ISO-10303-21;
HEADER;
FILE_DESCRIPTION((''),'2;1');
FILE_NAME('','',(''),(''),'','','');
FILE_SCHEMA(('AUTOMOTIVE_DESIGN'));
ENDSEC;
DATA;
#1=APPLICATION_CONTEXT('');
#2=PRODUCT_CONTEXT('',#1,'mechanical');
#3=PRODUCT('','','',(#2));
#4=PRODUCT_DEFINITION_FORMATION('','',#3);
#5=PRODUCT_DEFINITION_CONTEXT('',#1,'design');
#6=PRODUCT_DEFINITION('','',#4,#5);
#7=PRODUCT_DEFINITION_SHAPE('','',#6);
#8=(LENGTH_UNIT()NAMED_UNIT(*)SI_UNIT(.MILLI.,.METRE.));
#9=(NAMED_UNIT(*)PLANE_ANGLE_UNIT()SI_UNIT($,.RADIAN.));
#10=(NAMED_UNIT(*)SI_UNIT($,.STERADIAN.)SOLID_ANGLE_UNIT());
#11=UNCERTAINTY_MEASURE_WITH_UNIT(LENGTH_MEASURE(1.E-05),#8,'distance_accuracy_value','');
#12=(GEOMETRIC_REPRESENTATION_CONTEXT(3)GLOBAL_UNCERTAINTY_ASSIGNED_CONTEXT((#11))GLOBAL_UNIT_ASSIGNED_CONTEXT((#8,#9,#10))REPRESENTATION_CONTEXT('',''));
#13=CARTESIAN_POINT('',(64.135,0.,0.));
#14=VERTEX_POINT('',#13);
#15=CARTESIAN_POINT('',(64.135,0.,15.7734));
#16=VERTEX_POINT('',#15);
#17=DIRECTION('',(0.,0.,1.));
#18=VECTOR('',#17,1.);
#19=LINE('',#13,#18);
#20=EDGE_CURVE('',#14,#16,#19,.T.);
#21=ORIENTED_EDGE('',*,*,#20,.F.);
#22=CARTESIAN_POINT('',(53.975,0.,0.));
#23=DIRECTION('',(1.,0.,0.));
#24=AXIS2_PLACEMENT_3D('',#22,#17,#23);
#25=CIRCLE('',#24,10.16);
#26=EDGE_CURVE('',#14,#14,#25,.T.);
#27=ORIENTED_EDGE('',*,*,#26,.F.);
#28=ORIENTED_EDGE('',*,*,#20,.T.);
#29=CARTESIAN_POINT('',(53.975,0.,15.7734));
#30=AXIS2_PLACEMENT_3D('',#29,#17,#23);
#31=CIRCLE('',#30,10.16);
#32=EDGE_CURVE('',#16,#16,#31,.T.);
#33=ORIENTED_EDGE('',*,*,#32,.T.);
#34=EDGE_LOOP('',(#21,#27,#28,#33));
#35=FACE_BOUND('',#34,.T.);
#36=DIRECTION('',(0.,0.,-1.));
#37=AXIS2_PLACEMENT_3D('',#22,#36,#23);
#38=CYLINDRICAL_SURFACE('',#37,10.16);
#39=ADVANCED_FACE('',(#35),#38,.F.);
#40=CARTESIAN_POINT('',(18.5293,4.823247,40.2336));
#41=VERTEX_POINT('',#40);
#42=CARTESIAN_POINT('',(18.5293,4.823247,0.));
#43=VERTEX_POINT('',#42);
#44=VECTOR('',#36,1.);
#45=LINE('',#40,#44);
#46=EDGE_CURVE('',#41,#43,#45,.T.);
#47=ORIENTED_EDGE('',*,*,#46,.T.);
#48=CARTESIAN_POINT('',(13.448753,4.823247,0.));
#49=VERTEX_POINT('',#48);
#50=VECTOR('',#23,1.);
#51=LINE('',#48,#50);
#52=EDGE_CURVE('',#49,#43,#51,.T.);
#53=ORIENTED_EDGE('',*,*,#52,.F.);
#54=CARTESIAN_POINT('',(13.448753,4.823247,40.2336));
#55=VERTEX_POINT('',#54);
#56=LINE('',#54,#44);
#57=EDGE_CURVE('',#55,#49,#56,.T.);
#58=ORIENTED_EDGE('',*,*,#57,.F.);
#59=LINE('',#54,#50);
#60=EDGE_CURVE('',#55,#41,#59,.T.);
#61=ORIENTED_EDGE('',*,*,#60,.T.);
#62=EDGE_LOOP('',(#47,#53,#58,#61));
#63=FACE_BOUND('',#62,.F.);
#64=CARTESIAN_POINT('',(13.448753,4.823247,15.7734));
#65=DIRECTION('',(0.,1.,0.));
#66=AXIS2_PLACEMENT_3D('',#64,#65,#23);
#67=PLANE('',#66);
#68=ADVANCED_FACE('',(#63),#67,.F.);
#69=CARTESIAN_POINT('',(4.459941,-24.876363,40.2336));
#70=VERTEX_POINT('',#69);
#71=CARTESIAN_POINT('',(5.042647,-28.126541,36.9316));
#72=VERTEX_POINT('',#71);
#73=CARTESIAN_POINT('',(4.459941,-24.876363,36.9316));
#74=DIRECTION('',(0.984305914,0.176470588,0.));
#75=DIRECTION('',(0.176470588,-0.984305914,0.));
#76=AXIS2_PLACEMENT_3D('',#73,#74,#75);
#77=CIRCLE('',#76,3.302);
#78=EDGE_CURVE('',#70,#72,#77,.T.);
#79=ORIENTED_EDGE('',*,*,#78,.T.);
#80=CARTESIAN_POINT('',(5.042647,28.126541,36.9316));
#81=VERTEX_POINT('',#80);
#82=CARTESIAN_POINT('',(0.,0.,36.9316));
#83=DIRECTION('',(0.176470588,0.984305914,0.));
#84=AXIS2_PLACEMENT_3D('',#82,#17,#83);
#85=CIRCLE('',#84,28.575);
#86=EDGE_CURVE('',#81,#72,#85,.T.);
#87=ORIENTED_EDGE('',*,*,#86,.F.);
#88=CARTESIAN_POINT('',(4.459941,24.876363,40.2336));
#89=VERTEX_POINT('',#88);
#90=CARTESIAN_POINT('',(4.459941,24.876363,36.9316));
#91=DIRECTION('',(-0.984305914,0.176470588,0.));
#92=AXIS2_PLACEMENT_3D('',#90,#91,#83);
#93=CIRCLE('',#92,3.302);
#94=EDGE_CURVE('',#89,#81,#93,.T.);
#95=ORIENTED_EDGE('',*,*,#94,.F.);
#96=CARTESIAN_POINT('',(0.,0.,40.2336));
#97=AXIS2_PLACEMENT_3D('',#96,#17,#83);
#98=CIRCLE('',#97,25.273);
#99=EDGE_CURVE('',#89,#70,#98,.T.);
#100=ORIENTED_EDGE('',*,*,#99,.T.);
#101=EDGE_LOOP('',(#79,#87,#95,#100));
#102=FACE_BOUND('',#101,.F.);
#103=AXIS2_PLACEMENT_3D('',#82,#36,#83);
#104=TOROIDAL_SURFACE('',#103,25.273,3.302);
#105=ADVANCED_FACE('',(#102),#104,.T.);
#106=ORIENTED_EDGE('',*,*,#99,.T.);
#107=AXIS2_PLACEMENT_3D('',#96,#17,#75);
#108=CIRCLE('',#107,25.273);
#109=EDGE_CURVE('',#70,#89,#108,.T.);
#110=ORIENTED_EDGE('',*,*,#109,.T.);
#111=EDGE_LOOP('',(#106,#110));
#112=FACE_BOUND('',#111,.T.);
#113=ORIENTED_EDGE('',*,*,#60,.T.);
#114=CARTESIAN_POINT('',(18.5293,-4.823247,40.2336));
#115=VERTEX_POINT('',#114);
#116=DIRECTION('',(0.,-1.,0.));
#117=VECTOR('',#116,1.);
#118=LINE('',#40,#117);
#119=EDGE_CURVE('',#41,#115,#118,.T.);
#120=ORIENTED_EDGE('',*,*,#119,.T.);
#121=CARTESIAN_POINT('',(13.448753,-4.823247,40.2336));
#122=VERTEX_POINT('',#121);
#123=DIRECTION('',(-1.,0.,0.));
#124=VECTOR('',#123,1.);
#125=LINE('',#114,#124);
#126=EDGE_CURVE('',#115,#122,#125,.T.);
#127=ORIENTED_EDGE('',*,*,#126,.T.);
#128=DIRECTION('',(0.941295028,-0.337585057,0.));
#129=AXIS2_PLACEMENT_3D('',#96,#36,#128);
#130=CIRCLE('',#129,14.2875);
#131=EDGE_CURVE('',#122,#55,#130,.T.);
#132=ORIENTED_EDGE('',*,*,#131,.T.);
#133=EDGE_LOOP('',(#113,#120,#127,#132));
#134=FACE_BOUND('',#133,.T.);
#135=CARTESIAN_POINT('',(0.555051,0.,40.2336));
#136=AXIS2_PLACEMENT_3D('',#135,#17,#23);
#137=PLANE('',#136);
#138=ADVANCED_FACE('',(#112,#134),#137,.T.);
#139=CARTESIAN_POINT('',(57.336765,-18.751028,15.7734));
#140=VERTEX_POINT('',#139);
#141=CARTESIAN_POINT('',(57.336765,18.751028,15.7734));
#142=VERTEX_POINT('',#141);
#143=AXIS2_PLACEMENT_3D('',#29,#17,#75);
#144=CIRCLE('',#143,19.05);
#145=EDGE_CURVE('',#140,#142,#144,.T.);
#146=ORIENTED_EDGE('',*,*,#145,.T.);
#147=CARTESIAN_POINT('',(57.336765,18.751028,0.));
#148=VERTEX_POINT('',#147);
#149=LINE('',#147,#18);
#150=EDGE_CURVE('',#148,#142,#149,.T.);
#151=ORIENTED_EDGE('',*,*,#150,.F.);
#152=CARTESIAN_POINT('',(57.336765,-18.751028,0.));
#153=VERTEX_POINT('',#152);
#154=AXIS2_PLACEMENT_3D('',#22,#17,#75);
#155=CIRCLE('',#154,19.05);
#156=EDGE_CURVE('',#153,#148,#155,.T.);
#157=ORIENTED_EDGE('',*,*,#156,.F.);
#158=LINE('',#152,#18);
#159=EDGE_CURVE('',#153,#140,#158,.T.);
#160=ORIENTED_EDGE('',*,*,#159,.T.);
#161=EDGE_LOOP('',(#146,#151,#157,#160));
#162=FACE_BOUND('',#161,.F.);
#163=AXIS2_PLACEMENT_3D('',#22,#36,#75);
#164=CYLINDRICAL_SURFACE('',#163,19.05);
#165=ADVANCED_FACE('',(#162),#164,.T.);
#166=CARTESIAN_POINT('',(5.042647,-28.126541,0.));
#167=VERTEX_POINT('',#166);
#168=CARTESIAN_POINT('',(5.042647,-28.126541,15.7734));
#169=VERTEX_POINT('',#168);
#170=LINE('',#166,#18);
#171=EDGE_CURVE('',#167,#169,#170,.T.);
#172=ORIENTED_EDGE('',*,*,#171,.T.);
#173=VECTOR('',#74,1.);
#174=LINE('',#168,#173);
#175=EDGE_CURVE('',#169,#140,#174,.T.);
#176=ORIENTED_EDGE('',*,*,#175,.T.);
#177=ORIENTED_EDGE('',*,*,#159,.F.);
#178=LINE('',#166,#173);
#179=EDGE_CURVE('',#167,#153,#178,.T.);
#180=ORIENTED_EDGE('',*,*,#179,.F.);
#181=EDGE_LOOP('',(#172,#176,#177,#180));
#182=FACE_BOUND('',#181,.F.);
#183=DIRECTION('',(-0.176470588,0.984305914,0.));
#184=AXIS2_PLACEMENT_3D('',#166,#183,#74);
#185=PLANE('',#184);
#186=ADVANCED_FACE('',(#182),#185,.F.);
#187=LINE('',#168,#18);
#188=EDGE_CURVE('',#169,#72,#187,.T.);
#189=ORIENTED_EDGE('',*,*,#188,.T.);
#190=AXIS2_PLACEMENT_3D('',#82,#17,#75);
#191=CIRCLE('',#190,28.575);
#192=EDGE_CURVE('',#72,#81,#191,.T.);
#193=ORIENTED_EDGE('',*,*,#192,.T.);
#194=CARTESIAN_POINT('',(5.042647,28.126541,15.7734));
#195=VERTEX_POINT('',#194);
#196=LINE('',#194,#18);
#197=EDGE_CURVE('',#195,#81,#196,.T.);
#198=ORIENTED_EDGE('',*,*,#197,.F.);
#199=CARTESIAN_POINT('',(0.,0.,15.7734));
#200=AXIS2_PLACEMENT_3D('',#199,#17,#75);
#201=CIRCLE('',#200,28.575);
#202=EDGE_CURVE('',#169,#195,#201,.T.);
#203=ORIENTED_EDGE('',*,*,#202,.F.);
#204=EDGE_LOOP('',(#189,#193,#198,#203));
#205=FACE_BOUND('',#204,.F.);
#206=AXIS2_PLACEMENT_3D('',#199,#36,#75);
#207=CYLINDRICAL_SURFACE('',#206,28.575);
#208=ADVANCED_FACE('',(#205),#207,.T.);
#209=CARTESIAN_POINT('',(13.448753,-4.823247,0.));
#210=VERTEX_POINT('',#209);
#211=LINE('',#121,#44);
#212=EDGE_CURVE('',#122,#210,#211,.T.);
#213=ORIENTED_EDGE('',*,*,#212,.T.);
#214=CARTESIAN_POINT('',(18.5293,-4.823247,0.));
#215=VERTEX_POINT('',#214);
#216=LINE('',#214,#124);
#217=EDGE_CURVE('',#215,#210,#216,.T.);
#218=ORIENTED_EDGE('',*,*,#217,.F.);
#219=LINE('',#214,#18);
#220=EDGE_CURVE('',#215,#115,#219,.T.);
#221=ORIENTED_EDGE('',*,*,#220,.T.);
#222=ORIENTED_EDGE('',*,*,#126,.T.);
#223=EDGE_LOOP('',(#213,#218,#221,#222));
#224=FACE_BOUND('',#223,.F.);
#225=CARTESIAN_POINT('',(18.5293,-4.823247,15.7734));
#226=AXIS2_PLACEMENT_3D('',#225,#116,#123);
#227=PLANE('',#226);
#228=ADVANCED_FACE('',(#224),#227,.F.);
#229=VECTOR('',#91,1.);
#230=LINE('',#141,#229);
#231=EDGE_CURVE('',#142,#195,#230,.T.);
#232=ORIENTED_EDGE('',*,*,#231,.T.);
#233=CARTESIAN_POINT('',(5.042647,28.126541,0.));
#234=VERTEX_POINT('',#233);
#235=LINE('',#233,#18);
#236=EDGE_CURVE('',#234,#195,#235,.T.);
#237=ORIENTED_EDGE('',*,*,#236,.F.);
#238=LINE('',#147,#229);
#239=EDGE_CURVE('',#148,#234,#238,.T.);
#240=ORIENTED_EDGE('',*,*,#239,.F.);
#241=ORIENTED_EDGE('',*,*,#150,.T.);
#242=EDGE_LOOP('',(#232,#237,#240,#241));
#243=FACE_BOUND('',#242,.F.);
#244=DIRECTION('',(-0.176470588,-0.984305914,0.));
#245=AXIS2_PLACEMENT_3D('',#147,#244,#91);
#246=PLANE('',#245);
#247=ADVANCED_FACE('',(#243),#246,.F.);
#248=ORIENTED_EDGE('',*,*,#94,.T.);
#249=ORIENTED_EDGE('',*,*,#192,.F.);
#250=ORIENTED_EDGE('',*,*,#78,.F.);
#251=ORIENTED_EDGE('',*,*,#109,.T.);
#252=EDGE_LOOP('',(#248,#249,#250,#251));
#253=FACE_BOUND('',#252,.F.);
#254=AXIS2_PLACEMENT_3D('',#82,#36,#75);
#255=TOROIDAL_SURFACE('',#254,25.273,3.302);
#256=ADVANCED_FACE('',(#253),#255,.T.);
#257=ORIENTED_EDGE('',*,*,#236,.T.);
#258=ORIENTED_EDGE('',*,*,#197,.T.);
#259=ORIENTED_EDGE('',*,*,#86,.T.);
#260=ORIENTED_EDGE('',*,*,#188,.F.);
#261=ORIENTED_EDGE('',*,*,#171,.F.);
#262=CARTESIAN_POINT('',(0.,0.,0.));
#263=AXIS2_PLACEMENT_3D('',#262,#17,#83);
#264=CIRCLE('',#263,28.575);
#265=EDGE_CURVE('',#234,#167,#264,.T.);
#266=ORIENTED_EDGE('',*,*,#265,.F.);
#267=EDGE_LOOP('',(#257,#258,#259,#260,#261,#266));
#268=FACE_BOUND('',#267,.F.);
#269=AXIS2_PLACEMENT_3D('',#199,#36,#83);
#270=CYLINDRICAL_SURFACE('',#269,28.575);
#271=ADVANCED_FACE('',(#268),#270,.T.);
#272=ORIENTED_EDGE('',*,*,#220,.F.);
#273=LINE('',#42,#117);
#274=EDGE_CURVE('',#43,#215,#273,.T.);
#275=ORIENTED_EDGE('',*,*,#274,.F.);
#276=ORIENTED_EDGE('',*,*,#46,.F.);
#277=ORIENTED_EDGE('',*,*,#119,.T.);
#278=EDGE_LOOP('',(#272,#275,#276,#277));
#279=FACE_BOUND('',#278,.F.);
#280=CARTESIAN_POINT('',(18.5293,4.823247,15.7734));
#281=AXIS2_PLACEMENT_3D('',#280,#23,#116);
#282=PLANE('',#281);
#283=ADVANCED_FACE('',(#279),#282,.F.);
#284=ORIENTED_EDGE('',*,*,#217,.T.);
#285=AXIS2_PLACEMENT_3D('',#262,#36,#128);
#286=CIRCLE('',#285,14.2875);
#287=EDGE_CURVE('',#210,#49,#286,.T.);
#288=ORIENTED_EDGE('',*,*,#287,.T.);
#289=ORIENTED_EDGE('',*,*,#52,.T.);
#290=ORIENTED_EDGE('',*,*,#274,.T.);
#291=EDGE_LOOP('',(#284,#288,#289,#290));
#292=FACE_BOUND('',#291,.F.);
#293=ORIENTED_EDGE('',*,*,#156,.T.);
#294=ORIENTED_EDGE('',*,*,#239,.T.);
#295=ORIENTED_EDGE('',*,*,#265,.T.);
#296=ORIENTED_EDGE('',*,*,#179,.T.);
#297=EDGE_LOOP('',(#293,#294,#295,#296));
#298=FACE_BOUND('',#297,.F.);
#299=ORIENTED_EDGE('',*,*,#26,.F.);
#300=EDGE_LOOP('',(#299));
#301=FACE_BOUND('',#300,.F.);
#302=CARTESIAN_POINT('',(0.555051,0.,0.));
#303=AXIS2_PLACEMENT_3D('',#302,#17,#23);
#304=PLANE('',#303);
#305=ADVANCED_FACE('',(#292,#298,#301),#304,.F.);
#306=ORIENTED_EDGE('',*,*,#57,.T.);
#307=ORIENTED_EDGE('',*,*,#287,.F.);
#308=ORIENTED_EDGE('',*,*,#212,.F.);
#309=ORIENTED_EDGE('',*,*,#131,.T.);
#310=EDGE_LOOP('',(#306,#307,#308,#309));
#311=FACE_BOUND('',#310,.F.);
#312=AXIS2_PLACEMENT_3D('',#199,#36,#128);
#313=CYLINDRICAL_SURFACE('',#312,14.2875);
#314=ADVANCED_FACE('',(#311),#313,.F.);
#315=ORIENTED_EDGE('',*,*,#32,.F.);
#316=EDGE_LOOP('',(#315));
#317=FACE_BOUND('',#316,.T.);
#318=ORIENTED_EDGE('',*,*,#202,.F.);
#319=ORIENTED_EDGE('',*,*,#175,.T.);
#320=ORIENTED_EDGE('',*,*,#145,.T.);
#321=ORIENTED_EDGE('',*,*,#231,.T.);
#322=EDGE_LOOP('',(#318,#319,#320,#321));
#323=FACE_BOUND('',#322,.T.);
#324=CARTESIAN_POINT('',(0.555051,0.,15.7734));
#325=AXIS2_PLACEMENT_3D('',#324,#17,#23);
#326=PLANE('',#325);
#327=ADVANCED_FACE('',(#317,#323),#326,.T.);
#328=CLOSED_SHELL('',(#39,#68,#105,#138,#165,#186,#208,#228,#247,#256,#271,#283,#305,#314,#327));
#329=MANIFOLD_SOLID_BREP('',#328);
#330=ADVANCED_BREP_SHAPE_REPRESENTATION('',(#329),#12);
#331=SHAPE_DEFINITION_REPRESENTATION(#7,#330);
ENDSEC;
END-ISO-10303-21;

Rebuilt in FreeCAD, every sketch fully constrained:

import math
import FreeCAD as App
import Part
import Sketcher
Q = App.Units.Quantity


def edges_at(feature, points):
    """Names of the edges that pass closest to the given points."""
    edges = feature.Shape.Edges
    near = lambda p: min(range(len(edges)), key=lambda i: edges[i].distToShape(Part.Vertex(*p))[0])
    return sorted({f"Edge{near(p) + 1}" for p in points})

doc = App.newDocument("Part")
body = doc.addObject("PartDesign::Body", "Body")

# Sketch on XY plane
sketch1 = body.newObject("Sketcher::SketchObject", "Sketch")
sketch1.AttachmentSupport = (doc.getObject("XY_Plane"), [""])
sketch1.MapMode = "FlatFace"
sketch1.addGeometry([
    Part.ArcOfCircle(Part.Circle(App.Vector(0, 0, 0), App.Vector(0, 0, 1), 29), math.radians(80), math.radians(280)),  # 0
    Part.LineSegment(App.Vector(5, -28, 0), App.Vector(57, -19, 0)),  # 1
    Part.ArcOfCircle(Part.Circle(App.Vector(54, 0, 0), App.Vector(0, 0, 1), 19), math.radians(-80), math.radians(80)),  # 2
    Part.LineSegment(App.Vector(57, 19, 0), App.Vector(5, 28, 0)),  # 3
    Part.Circle(App.Vector(54, 0, 0), App.Vector(0, 0, 1), 10),  # 4
    Part.LineSegment(App.Vector(19, -5, 0), App.Vector(13, -5, 0)),  # 5
    Part.ArcOfCircle(Part.Circle(App.Vector(0, 0, 0), App.Vector(0, 0, 1), 14), math.radians(20), math.radians(340)),  # 6
    Part.LineSegment(App.Vector(13, 5, 0), App.Vector(19, 5, 0)),  # 7
    Part.LineSegment(App.Vector(19, 5, 0), App.Vector(19, -5, 0)),  # 8
], False)
sketch1.addConstraint([
    Sketcher.Constraint("Tangent", 0, 2, 1, 1),
    Sketcher.Constraint("Tangent", 1, 2, 2, 1),
    Sketcher.Constraint("Tangent", 2, 2, 3, 1),
    Sketcher.Constraint("Tangent", 3, 2, 0, 1),
    Sketcher.Constraint("Coincident", 5, 2, 6, 2),
    Sketcher.Constraint("Coincident", 6, 1, 7, 1),
    Sketcher.Constraint("Coincident", 7, 2, 8, 1),
    Sketcher.Constraint("Coincident", 8, 2, 5, 1),
    Sketcher.Constraint("Horizontal", 5),
    Sketcher.Constraint("Horizontal", 7),
    Sketcher.Constraint("Vertical", 8),
    Sketcher.Constraint("Coincident", 0, 3, -1, 1),
    Sketcher.Constraint("Coincident", 6, 3, -1, 1),
    Sketcher.Constraint("Coincident", 4, 3, 2, 3),
    Sketcher.Constraint("PointOnObject", 2, 3, -1),
    Sketcher.Constraint("Vertical", 5, 2, 6, 1),
    Sketcher.Constraint("Diameter", 4, Q("0.8 in")),
    Sketcher.Constraint("Radius", 2, Q("0.75 in")),
    Sketcher.Constraint("Radius", 0, Q("1.125 in")),
    Sketcher.Constraint("Radius", 6, Q("0.5625 in")),
    Sketcher.Constraint("DistanceX", -1, 1, 2, 3, Q("2.125 in")),
    Sketcher.Constraint("DistanceX", -1, 1, 7, 2, Q("0.7295 in")),
    Sketcher.Constraint("DistanceX", 5, 2, 5, 1, Q("5.080547 mm")),
])
pad1 = body.newObject("PartDesign::Pad", "Pad")
pad1.Profile = sketch1
pad1.Length = Q("0.621 in")

# Sketch on XY plane
sketch2 = body.newObject("Sketcher::SketchObject", "Sketch001")
sketch2.AttachmentSupport = (doc.getObject("XY_Plane"), [""])
sketch2.MapMode = "FlatFace"
sketch2.AttachmentOffset = App.Placement(App.Vector(0, 0, 0.621 * 25.4), App.Rotation())
sketch2.addGeometry([
    Part.ArcOfCircle(Part.Circle(App.Vector(0, 0, 0), App.Vector(0, 0, 1), 29), math.radians(-80), math.radians(80)),  # 0
    Part.ArcOfCircle(Part.Circle(App.Vector(0, 0, 0), App.Vector(0, 0, 1), 29), math.radians(80), math.radians(280)),  # 1
    Part.LineSegment(App.Vector(19, 5, 0), App.Vector(19, -5, 0)),  # 2
    Part.LineSegment(App.Vector(19, -5, 0), App.Vector(13, -5, 0)),  # 3
    Part.ArcOfCircle(Part.Circle(App.Vector(0, 0, 0), App.Vector(0, 0, 1), 14), math.radians(20), math.radians(340)),  # 4
    Part.LineSegment(App.Vector(13, 5, 0), App.Vector(19, 5, 0)),  # 5
], False)
sketch2.addConstraint([
    Sketcher.Constraint("Tangent", 0, 1, 1, 2),
    Sketcher.Constraint("Coincident", 1, 1, 0, 2),
    Sketcher.Constraint("Coincident", 2, 2, 3, 1),
    Sketcher.Constraint("Coincident", 3, 2, 4, 2),
    Sketcher.Constraint("Coincident", 4, 1, 5, 1),
    Sketcher.Constraint("Coincident", 5, 2, 2, 1),
    Sketcher.Constraint("Vertical", 2),
    Sketcher.Constraint("Horizontal", 3),
    Sketcher.Constraint("Horizontal", 5),
    Sketcher.Constraint("Coincident", 0, 3, -1, 1),
    Sketcher.Constraint("Coincident", 4, 3, -1, 1),
    Sketcher.Constraint("Vertical", 0, 1, 1, 1),
    Sketcher.Constraint("Vertical", 3, 2, 4, 1),
    Sketcher.Constraint("Radius", 0, Q("1.125 in")),
    Sketcher.Constraint("Radius", 4, Q("0.5625 in")),
    Sketcher.Constraint("DistanceX", -1, 1, 2, 2, Q("0.7295 in")),
    Sketcher.Constraint("DistanceX", 3, 2, 3, 1, Q("5.080547 mm")),
    Sketcher.Constraint("DistanceY", 0, 1, -1, 1, Q("28.126541 mm")),
])
pad2 = body.newObject("PartDesign::Pad", "Pad001")
pad2.Profile = sketch2
pad2.Length = Q("0.963 in")
doc.recompute()

fillet = body.newObject("PartDesign::Fillet", "Fillet")
fillet.Base = (pad2, edges_at(pad2, [(-28.575, 0, 40.234)]))
fillet.Radius = Q("0.13 in")

doc.recompute()
